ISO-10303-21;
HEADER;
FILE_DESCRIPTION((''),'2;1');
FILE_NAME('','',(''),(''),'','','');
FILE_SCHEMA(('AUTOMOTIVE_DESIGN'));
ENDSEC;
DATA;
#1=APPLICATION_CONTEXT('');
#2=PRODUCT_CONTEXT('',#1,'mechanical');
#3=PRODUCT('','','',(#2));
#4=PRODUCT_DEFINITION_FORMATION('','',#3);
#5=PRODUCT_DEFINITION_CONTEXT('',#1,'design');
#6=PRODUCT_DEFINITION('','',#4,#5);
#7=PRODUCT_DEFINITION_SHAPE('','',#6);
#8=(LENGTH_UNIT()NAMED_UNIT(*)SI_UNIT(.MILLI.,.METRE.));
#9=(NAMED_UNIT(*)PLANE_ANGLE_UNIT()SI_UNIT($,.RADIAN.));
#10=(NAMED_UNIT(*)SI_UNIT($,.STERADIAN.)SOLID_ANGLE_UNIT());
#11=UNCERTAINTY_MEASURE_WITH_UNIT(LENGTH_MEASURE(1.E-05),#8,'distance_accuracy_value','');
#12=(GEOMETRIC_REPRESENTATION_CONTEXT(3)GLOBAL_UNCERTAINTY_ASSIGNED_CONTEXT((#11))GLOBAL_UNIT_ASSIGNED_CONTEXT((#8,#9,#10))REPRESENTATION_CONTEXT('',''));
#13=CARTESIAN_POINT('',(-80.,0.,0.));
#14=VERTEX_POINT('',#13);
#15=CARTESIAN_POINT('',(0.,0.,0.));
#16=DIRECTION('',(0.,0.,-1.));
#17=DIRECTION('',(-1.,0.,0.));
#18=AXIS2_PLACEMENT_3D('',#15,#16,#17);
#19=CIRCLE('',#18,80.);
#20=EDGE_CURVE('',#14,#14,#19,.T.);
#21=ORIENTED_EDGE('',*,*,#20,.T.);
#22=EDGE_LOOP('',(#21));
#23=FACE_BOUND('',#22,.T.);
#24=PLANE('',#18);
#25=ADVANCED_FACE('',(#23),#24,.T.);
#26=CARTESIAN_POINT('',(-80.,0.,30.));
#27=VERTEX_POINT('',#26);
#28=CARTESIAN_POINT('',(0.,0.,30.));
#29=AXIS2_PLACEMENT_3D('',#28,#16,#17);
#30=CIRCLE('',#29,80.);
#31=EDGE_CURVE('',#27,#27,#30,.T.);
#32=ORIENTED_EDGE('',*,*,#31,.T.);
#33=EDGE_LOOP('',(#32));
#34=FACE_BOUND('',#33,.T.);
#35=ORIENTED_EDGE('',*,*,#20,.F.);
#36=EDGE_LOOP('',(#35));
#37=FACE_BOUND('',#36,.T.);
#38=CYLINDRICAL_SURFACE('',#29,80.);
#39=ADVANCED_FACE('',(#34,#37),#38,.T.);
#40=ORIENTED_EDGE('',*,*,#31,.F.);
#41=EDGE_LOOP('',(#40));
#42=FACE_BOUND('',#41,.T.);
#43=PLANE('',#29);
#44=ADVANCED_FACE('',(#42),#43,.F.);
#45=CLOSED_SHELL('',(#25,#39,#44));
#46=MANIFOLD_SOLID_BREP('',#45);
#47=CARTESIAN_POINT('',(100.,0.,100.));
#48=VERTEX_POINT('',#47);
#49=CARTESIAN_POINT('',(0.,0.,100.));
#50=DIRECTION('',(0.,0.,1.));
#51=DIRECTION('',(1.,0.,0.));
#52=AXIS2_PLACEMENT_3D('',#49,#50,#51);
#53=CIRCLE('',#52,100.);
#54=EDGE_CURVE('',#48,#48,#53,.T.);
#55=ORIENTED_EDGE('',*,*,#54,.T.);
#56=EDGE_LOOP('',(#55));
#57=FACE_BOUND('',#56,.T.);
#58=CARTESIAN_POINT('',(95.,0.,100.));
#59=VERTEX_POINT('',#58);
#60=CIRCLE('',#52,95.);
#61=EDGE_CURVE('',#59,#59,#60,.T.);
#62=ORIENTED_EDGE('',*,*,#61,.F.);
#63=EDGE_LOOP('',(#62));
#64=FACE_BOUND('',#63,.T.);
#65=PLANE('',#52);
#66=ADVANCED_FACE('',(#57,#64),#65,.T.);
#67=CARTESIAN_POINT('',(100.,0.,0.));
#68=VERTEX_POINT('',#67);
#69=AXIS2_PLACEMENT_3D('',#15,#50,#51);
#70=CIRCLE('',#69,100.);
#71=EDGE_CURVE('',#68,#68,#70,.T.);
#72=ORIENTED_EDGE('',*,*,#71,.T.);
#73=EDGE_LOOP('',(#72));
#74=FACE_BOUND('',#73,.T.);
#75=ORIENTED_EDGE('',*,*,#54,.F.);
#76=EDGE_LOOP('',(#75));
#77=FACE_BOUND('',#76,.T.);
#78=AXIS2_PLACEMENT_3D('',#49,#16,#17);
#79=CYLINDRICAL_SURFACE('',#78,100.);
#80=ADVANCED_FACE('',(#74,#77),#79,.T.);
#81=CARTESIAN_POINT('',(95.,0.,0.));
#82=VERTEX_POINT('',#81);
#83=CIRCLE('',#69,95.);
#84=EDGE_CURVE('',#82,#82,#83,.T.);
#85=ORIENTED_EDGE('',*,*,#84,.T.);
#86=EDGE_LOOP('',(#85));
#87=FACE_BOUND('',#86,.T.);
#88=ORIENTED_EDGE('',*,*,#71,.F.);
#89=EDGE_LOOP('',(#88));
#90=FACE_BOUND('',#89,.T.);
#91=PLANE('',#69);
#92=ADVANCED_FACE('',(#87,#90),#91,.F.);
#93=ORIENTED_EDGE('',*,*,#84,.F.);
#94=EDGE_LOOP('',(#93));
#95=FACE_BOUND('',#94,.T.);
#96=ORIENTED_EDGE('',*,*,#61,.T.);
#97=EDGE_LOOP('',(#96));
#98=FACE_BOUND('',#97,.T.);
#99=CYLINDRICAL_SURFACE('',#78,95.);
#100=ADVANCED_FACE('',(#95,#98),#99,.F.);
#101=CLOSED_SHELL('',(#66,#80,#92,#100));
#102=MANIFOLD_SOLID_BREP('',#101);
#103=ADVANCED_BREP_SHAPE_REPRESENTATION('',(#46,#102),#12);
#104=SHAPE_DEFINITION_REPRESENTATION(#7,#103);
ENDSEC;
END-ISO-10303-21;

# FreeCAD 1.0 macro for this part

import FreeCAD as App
import Part
import Sketcher

V = App.Vector
Q = App.Units.Quantity

doc = App.newDocument("Part")
body = doc.addObject("PartDesign::Body", "Body")

# Sketch on XY plane
sketch1 = body.newObject("Sketcher::SketchObject", "Sketch")
sketch1.AttachmentSupport = (doc.getObject("XY_Plane"), [""])
sketch1.MapMode = "FlatFace"
sketch1.addGeometry(Part.Circle(V(0, 0, 0), V(0, 0, 1), 100), False)
sketch1.addGeometry(Part.Circle(V(0, 0, 0), V(0, 0, 1), 95), False)
sketch1.addConstraint(Sketcher.Constraint("Coincident", 0, 3, -1, 1))
sketch1.addConstraint(Sketcher.Constraint("Coincident", 1, 3, -1, 1))
sketch1.addConstraint(Sketcher.Constraint("Diameter", 0, Q("200 mm")))
sketch1.addConstraint(Sketcher.Constraint("Diameter", 1, Q("190 mm")))
pad1 = body.newObject("PartDesign::Pad", "Pad")
pad1.Profile = sketch1
pad1.Length = 100
body2 = doc.addObject("PartDesign::Body", "Body001")

# Sketch on XY plane
sketch2 = body2.newObject("Sketcher::SketchObject", "Sketch001")
sketch2.AttachmentSupport = (doc.getObject("XY_Plane001"), [""])
sketch2.MapMode = "FlatFace"
sketch2.addGeometry(Part.Circle(V(0, 0, 0), V(0, 0, 1), 80), False)
sketch2.addConstraint(Sketcher.Constraint("Coincident", 0, 3, -1, 1))
sketch2.addConstraint(Sketcher.Constraint("Diameter", 0, Q("160 mm")))
pad2 = body2.newObject("PartDesign::Pad", "Pad001")
pad2.Profile = sketch2
pad2.Length = 30

doc.recompute()
